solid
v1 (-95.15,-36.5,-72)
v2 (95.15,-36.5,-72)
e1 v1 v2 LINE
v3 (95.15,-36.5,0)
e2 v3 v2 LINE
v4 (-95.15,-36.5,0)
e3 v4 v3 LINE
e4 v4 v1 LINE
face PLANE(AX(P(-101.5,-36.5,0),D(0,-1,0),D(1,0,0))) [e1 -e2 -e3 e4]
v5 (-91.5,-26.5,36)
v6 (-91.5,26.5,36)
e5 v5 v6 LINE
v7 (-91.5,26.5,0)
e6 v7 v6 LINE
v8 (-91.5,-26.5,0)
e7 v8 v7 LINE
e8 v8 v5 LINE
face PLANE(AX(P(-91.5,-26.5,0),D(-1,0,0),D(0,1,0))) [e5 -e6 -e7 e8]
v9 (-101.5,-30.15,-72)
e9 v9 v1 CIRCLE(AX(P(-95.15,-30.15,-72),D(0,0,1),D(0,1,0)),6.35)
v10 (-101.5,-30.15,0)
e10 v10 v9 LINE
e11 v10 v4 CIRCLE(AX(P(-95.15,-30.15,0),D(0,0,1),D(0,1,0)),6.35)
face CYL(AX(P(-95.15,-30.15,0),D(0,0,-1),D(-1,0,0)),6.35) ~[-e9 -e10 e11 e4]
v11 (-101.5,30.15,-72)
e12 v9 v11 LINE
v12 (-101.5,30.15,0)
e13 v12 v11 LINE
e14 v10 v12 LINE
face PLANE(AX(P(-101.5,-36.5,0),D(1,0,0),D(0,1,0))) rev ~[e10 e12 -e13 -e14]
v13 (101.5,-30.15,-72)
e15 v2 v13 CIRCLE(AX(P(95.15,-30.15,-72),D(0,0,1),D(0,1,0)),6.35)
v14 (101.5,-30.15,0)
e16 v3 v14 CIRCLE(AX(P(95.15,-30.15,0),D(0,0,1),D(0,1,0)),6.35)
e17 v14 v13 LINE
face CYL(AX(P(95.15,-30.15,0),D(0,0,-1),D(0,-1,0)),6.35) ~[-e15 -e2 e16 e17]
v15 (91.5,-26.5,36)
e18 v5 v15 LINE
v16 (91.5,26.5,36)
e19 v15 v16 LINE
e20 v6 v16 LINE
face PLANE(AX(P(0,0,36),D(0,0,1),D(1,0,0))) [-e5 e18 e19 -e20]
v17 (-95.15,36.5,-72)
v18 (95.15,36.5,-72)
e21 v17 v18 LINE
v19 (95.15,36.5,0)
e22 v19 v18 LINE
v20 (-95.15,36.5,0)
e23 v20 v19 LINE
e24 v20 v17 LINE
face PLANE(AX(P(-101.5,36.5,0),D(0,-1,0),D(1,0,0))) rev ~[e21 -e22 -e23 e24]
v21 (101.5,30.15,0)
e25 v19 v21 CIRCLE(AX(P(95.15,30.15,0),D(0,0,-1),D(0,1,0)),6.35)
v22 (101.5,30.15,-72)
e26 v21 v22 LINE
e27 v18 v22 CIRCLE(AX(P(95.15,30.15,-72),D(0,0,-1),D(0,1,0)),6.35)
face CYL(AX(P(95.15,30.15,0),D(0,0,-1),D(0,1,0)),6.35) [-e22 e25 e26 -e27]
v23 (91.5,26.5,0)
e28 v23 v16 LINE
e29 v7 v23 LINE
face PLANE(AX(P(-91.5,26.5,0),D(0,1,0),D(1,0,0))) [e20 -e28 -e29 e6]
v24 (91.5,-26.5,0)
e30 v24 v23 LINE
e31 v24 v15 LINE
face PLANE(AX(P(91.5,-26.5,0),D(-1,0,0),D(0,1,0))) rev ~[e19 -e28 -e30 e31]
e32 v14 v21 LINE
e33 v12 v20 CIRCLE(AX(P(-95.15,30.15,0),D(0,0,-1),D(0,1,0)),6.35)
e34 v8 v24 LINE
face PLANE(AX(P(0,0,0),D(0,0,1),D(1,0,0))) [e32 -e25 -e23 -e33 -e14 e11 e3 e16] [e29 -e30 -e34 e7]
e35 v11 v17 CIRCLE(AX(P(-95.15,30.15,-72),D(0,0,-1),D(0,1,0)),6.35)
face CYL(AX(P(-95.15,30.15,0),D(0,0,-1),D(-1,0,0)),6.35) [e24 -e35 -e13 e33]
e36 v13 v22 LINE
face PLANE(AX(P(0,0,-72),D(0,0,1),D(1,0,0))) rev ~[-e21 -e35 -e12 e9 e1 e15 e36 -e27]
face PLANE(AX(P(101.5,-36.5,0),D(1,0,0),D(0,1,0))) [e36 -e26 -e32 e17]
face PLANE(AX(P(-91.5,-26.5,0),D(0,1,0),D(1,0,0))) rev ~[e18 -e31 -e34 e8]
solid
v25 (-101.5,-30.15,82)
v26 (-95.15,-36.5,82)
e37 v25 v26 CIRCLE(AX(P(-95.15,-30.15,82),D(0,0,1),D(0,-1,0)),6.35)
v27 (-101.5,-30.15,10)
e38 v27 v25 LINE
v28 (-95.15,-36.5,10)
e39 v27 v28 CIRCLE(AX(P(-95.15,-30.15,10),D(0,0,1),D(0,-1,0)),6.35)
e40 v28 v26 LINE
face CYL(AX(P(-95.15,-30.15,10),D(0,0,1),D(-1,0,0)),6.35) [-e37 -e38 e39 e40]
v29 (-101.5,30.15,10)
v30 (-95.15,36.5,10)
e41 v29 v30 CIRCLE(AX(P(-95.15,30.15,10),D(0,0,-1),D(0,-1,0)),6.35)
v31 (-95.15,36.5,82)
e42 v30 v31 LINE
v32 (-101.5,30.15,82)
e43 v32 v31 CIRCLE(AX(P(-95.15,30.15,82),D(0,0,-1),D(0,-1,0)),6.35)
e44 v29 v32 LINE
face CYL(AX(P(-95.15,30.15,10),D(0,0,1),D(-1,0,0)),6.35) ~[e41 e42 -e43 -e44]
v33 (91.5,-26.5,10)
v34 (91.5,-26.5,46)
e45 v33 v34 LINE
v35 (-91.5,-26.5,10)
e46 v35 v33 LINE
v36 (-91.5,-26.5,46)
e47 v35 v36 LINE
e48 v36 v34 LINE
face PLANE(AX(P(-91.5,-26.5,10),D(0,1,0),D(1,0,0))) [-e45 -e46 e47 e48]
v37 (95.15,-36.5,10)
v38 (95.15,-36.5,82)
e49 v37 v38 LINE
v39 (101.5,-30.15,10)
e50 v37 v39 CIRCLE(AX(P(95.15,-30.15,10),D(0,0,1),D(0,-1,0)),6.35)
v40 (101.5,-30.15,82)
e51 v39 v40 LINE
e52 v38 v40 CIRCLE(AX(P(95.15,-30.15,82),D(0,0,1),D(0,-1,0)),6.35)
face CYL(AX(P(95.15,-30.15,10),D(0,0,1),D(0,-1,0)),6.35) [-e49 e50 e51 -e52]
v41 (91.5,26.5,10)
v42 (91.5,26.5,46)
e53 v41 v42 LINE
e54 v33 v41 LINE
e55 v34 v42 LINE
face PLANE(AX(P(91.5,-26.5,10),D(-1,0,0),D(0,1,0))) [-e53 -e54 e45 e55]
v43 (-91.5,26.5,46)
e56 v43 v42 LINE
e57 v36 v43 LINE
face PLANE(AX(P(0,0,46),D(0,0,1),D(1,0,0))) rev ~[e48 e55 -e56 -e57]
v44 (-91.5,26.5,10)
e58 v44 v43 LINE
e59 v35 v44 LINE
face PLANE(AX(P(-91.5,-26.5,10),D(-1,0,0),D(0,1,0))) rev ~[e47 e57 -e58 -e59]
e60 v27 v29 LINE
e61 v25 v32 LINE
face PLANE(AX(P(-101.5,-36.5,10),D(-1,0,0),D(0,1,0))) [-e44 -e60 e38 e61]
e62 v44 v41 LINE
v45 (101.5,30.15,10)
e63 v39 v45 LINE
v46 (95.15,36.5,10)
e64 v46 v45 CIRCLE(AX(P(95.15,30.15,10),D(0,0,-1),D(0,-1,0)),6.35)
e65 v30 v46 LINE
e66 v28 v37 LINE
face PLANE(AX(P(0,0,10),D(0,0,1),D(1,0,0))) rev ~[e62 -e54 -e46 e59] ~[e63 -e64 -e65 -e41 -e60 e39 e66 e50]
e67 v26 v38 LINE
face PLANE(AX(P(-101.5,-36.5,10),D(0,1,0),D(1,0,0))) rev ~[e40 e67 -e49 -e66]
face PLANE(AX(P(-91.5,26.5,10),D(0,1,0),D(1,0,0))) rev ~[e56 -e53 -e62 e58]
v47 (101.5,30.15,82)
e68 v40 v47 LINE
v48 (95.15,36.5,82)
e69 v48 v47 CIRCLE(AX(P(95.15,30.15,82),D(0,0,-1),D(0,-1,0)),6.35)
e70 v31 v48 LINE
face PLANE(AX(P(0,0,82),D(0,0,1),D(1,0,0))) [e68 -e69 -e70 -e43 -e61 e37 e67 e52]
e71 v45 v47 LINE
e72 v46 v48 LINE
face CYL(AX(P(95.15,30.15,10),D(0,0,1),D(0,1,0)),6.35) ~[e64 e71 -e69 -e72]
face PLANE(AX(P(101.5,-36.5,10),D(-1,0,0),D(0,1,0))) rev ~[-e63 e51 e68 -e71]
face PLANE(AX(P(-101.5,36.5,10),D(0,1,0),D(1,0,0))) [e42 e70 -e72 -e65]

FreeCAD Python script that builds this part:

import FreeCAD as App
import Part
import Sketcher
Q = App.Units.Quantity


def edges_at(feature, points):
    """Names of the edges that pass closest to the given points."""
    edges = feature.Shape.Edges
    near = lambda p: min(range(len(edges)), key=lambda i: edges[i].distToShape(Part.Vertex(*p))[0])
    return sorted({f"Edge{near(p) + 1}" for p in points})


def add_polygon(sketch, points):
    """Adds a closed chain of lines whose ends are joined by coincident constraints."""
    first, n = sketch.GeometryCount, len(points)
    for a, b in zip(points, points[1:] + points[:1]):
        sketch.addGeometry(Part.LineSegment(App.Vector(*a, 0), App.Vector(*b, 0)), False)
    for i in range(n):
        sketch.addConstraint(Sketcher.Constraint("Coincident", first + i, 2, first + (i + 1) % n, 1))

doc = App.newDocument("Part")
body = doc.addObject("PartDesign::Body", "Body")

# Sketch on XY plane
sketch1 = body.newObject("Sketcher::SketchObject", "Sketch")
sketch1.AttachmentSupport = (doc.getObject("XY_Plane"), [""])
sketch1.MapMode = "FlatFace"
add_polygon(sketch1, [(-101.5, 36.5), (-101.5, -36.5), (101.5, -36.5), (101.5, 36.5)])  # lines 0-3
sketch1.addConstraint(Sketcher.Constraint("Vertical", 0))
sketch1.addConstraint(Sketcher.Constraint("Horizontal", 1))
sketch1.addConstraint(Sketcher.Constraint("Vertical", 2))
sketch1.addConstraint(Sketcher.Constraint("Horizontal", 3))
sketch1.addConstraint(Sketcher.Constraint("Symmetric", 0, 2, 2, 2, -1, 1))
sketch1.addConstraint(Sketcher.Constraint("DistanceX", 1, 1, 1, 2, Q("203 mm")))
sketch1.addConstraint(Sketcher.Constraint("DistanceY", 0, 2, 0, 1, Q("73 mm")))
pad1 = body.newObject("PartDesign::Pad", "Pad")
pad1.Profile = sketch1
pad1.Length = 72
pad1.Reversed = True

# Sketch on XY plane
sketch2 = body.newObject("Sketcher::SketchObject", "Sketch001")
sketch2.AttachmentSupport = (doc.getObject("XY_Plane"), [""])
sketch2.MapMode = "FlatFace"
add_polygon(sketch2, [(-91.5, 26.5), (-91.5, -26.5), (91.5, -26.5), (91.5, 26.5)])  # lines 0-3
sketch2.addConstraint(Sketcher.Constraint("Vertical", 0))
sketch2.addConstraint(Sketcher.Constraint("Horizontal", 1))
sketch2.addConstraint(Sketcher.Constraint("Vertical", 2))
sketch2.addConstraint(Sketcher.Constraint("Horizontal", 3))
sketch2.addConstraint(Sketcher.Constraint("Symmetric", 0, 2, 2, 2, -1, 1))
sketch2.addConstraint(Sketcher.Constraint("DistanceX", 1, 1, 1, 2, Q("183 mm")))
sketch2.addConstraint(Sketcher.Constraint("DistanceY", 0, 2, 0, 1, Q("53 mm")))
pad2 = body.newObject("PartDesign::Pad", "Pad001")
pad2.Profile = sketch2
pad2.Length = 36
doc.recompute()

fillet = body.newObject("PartDesign::Fillet", "Fillet")
fillet.Base = (pad2, edges_at(pad2, [
    (101.5, 36.5, -36),
    (101.5, -36.5, -36),
    (-101.5, 36.5, -36),
    (-101.5, -36.5, -36),
]))
fillet.Radius = 6.35
body2 = doc.addObject("PartDesign::Body", "Body001")

# Sketch on XY plane
sketch3 = body2.newObject("Sketcher::SketchObject", "Sketch002")
sketch3.AttachmentSupport = (doc.getObject("XY_Plane001"), [""])
sketch3.MapMode = "FlatFace"
sketch3.AttachmentOffset = App.Placement(App.Vector(0, 0, 10), App.Rotation())
add_polygon(sketch3, [(-101.5, 36.5), (-101.5, -36.5), (101.5, -36.5), (101.5, 36.5)])  # lines 0-3
sketch3.addConstraint(Sketcher.Constraint("Vertical", 0))
sketch3.addConstraint(Sketcher.Constraint("Horizontal", 1))
sketch3.addConstraint(Sketcher.Constraint("Vertical", 2))
sketch3.addConstraint(Sketcher.Constraint("Horizontal", 3))
sketch3.addConstraint(Sketcher.Constraint("Symmetric", 0, 2, 2, 2, -1, 1))
sketch3.addConstraint(Sketcher.Constraint("DistanceX", 1, 1, 1, 2, Q("203 mm")))
sketch3.addConstraint(Sketcher.Constraint("DistanceY", 0, 2, 0, 1, Q("73 mm")))
pad3 = body2.newObject("PartDesign::Pad", "Pad002")
pad3.Profile = sketch3
pad3.Length = 72

# Sketch on XY plane
sketch4 = body2.newObject("Sketcher::SketchObject", "Sketch003")
sketch4.AttachmentSupport = (doc.getObject("XY_Plane001"), [""])
sketch4.MapMode = "FlatFace"
sketch4.AttachmentOffset = App.Placement(App.Vector(0, 0, 10), App.Rotation())
add_polygon(sketch4, [(-91.5, 26.5), (-91.5, -26.5), (91.5, -26.5), (91.5, 26.5)])  # lines 0-3
sketch4.addConstraint(Sketcher.Constraint("Vertical", 0))
sketch4.addConstraint(Sketcher.Constraint("Horizontal", 1))
sketch4.addConstraint(Sketcher.Constraint("Vertical", 2))
sketch4.addConstraint(Sketcher.Constraint("Horizontal", 3))
sketch4.addConstraint(Sketcher.Constraint("Symmetric", 0, 2, 2, 2, -1, 1))
sketch4.addConstraint(Sketcher.Constraint("DistanceX", 1, 1, 1, 2, Q("183 mm")))
sketch4.addConstraint(Sketcher.Constraint("DistanceY", 0, 2, 0, 1, Q("53 mm")))
pocket1 = body2.newObject("PartDesign::Pocket", "Pocket")
pocket1.Profile = sketch4
pocket1.Length = 36
pocket1.Reversed = True
doc.recompute()

fillet2 = body2.newObject("PartDesign::Fillet", "Fillet001")
fillet2.Base = (pocket1, edges_at(pocket1, [
    (101.5, 36.5, 46),
    (101.5, -36.5, 46),
    (-101.5, 36.5, 46),
    (-101.5, -36.5, 46),
]))
fillet2.Radius = 6.35

doc.recompute()
